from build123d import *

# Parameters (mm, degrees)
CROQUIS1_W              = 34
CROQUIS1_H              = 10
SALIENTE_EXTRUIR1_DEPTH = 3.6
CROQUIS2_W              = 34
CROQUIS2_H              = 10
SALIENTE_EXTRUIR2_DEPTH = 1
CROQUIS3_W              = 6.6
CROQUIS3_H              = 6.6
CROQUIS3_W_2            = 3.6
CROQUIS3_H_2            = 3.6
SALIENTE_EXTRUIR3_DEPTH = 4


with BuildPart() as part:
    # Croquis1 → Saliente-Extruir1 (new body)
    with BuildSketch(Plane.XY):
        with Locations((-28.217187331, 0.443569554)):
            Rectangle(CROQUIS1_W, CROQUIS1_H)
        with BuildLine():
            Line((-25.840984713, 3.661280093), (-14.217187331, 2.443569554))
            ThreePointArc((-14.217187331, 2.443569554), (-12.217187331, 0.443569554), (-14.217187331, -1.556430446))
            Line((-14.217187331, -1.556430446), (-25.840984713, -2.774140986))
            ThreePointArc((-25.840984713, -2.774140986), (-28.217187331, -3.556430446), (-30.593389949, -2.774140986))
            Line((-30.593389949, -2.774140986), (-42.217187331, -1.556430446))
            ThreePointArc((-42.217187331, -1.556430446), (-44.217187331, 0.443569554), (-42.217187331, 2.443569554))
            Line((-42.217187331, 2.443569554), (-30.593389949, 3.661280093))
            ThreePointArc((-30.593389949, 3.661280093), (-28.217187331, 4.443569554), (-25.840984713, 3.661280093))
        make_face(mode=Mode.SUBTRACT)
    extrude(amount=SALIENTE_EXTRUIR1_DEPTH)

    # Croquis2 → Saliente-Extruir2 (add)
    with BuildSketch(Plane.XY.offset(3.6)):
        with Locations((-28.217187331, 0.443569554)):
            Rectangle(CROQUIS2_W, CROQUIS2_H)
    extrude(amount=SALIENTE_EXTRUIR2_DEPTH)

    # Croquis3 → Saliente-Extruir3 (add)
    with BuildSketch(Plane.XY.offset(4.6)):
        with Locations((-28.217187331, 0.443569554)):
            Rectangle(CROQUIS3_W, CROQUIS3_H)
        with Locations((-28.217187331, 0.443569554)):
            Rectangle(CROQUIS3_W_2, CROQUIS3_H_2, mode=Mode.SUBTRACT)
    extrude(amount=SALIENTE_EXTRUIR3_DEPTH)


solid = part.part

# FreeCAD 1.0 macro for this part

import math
import FreeCAD as App
import Part
import Sketcher
from FreeCAD import Vector
Q = App.Units.Quantity

doc = App.newDocument("Part")
params = doc.addObject("Spreadsheet::Sheet", "Params")
for row, (alias, value) in enumerate([
    ("sketch1_radius", "4 mm"),
    ("sketch1_radius2", "2 mm"),
    ("sketch1_width", "34 mm"),
    ("sketch1_height", "10 mm"),
    ("pad1_length", "3.6 mm"),
    ("sketch2_width", "34 mm"),
    ("sketch2_height", "10 mm"),
    ("pad2_length", "1 mm"),
    ("sketch3_width", "6.6 mm"),
    ("sketch3_width2", "3.6 mm"),
    ("pad3_length", "4 mm"),
], start=1):
    params.set(f"A{row}", alias)
    params.set(f"B{row}", "=" + value)
    params.setAlias(f"B{row}", alias)

body = doc.addObject("PartDesign::Body", "Body")

# Sketch on XY plane
sketch1 = body.newObject("Sketcher::SketchObject", "Sketch")
sketch1.AttachmentSupport = (doc.getObject("XY_Plane"), [""])
sketch1.MapMode = "FlatFace"
sketch1.addGeometry([
    Part.LineSegment(Vector(-45.2, 5.4, 0), Vector(-45.2, -4.6, 0)),  # 0
    Part.LineSegment(Vector(-45.2, -4.6, 0), Vector(-11.2, -4.6, 0)),  # 1
    Part.LineSegment(Vector(-11.2, -4.6, 0), Vector(-11.2, 5.4, 0)),  # 2
    Part.LineSegment(Vector(-11.2, 5.4, 0), Vector(-45.2, 5.4, 0)),  # 3
    Part.ArcOfCircle(Part.Circle(Vector(-28.2, 0.4, 0), Vector(0, 0, 1), 4), math.radians(54), math.radians(126)),  # 4
    Part.LineSegment(Vector(-25.8, 3.7, 0), Vector(-14.2, 2.4, 0)),  # 5
    Part.ArcOfCircle(Part.Circle(Vector(-14.2, 0.4, 0), Vector(0, 0, 1), 2), math.radians(-90), math.radians(90)),  # 6
    Part.LineSegment(Vector(-14.2, -1.6, 0), Vector(-25.8, -2.8, 0)),  # 7
    Part.ArcOfCircle(Part.Circle(Vector(-28.2, 0.4, 0), Vector(0, 0, 1), 4), math.radians(-126), math.radians(-54)),  # 8
    Part.LineSegment(Vector(-30.6, -2.8, 0), Vector(-42.2, -1.6, 0)),  # 9
    Part.ArcOfCircle(Part.Circle(Vector(-42.2, 0.4, 0), Vector(0, 0, 1), 2), math.radians(90), math.radians(270)),  # 10
    Part.LineSegment(Vector(-42.2, 2.4, 0), Vector(-30.6, 3.7, 0)),  # 11
], False)
sketch1.addConstraint([
    Sketcher.Constraint("Coincident", 0, 2, 1, 1),
    Sketcher.Constraint("Coincident", 1, 2, 2, 1),
    Sketcher.Constraint("Coincident", 2, 2, 3, 1),
    Sketcher.Constraint("Coincident", 3, 2, 0, 1),
    Sketcher.Constraint("Coincident", 4, 1, 5, 1),
    Sketcher.Constraint("Coincident", 5, 2, 6, 2),
    Sketcher.Constraint("Coincident", 6, 1, 7, 1),
    Sketcher.Constraint("Coincident", 7, 2, 8, 2),
    Sketcher.Constraint("Coincident", 8, 1, 9, 1),
    Sketcher.Constraint("Coincident", 9, 2, 10, 2),
    Sketcher.Constraint("Coincident", 10, 1, 11, 1),
    Sketcher.Constraint("Coincident", 11, 2, 4, 2),
    Sketcher.Constraint("Vertical", 0),
    Sketcher.Constraint("Horizontal", 1),
    Sketcher.Constraint("Vertical", 2),
    Sketcher.Constraint("Horizontal", 3),
    Sketcher.Constraint("Coincident", 8, 3, 4, 3),
    Sketcher.Constraint("Equal", 4, 8),
    Sketcher.Constraint("Equal", 6, 10),
    Sketcher.Constraint("Parallel", 5, 9),
    Sketcher.Constraint("Parallel", 7, 11),
    Sketcher.Constraint("Horizontal", 4, 3, 6, 3),
    Sketcher.Constraint("Horizontal", 8, 3, 10, 3),
    Sketcher.Constraint("Horizontal", 7, 2, 8, 1),
    Sketcher.Constraint("Horizontal", 4, 1, 11, 2),
    Sketcher.Constraint("Vertical", 6, 3, 5, 2),
    Sketcher.Constraint("Vertical", 5, 2, 6, 1),
    Sketcher.Constraint("Vertical", 4, 1, 7, 2),
    Sketcher.Constraint("Vertical", 10, 3, 9, 2),
    Sketcher.Constraint("Radius", 4, Q("4 mm")),
    Sketcher.Constraint("Radius", 6, Q("2 mm")),
    Sketcher.Constraint("DistanceX", 1, 1, 1, 2, Q("34 mm")),
    Sketcher.Constraint("DistanceY", 0, 2, 0, 1, Q("10 mm")),
    Sketcher.Constraint("DistanceX", 4, 3, 6, 3, Q("14 mm")),
    Sketcher.Constraint("DistanceX", 0, 2, 10, 3, Q("3 mm")),
    Sketcher.Constraint("DistanceY", 0, 2, 10, 3, Q("5 mm")),
    Sketcher.Constraint("DistanceY", -1, 1, 4, 3, Q("0.44357 mm")),
    Sketcher.Constraint("DistanceY", -1, 1, 4, 1, Q("3.66128 mm")),
    Sketcher.Constraint("DistanceX", 8, 1, -1, 1, Q("30.59339 mm")),
])
sketch1.setExpression("Constraints[29]", "Params.sketch1_radius")
sketch1.setExpression("Constraints[30]", "Params.sketch1_radius2")
sketch1.setExpression("Constraints[31]", "Params.sketch1_width")
sketch1.setExpression("Constraints[32]", "Params.sketch1_height")
pad1 = body.newObject("PartDesign::Pad", "Pad")
pad1.Profile = sketch1
pad1.setExpression("Length", "Params.pad1_length")

# Sketch on XY plane
sketch2 = body.newObject("Sketcher::SketchObject", "Sketch001")
sketch2.AttachmentSupport = (doc.getObject("XY_Plane"), [""])
sketch2.MapMode = "FlatFace"
sketch2.AttachmentOffset = App.Placement(Vector(0, 0, 3.6), App.Rotation())
sketch2.addGeometry([
    Part.LineSegment(Vector(-45, 5, 0), Vector(-45, -5, 0)),
    Part.LineSegment(Vector(-45, -5, 0), Vector(-11, -5, 0)),
    Part.LineSegment(Vector(-11, -5, 0), Vector(-11, 5, 0)),
    Part.LineSegment(Vector(-11, 5, 0), Vector(-45, 5, 0)),
], False)
sketch2.addConstraint([
    Sketcher.Constraint("Coincident", 0, 2, 1, 1),
    Sketcher.Constraint("Coincident", 1, 2, 2, 1),
    Sketcher.Constraint("Coincident", 2, 2, 3, 1),
    Sketcher.Constraint("Coincident", 3, 2, 0, 1),
    Sketcher.Constraint("Vertical", 0),
    Sketcher.Constraint("Horizontal", 1),
    Sketcher.Constraint("Vertical", 2),
    Sketcher.Constraint("Horizontal", 3),
    Sketcher.Constraint("DistanceX", 1, 1, 1, 2, Q("34 mm")),
    Sketcher.Constraint("DistanceY", 0, 2, 0, 1, Q("10 mm")),
    Sketcher.Constraint("DistanceY", 0, 2, -1, 1, Q("4.55643 mm")),
    Sketcher.Constraint("DistanceX", 0, 2, -1, 1, Q("45.217187 mm")),
])
sketch2.setExpression("Constraints[8]", "Params.sketch2_width")
sketch2.setExpression("Constraints[9]", "Params.sketch2_height")
pad2 = body.newObject("PartDesign::Pad", "Pad001")
pad2.Profile = sketch2
pad2.setExpression("Length", "Params.pad2_length")

# Sketch on XY plane
sketch3 = body.newObject("Sketcher::SketchObject", "Sketch002")
sketch3.AttachmentSupport = (doc.getObject("XY_Plane"), [""])
sketch3.MapMode = "FlatFace"
sketch3.AttachmentOffset = App.Placement(Vector(0, 0, 4.6), App.Rotation())
sketch3.addGeometry([
    Part.LineSegment(Vector(-31.5, 3.7, 0), Vector(-31.5, -2.9, 0)),  # 0
    Part.LineSegment(Vector(-31.5, -2.9, 0), Vector(-24.9, -2.9, 0)),  # 1
    Part.LineSegment(Vector(-24.9, -2.9, 0), Vector(-24.9, 3.7, 0)),  # 2
    Part.LineSegment(Vector(-24.9, 3.7, 0), Vector(-31.5, 3.7, 0)),  # 3
    Part.LineSegment(Vector(-26.4, -1.4, 0), Vector(-30, -1.4, 0)),  # 4
    Part.LineSegment(Vector(-30, -1.4, 0), Vector(-30, 2.2, 0)),  # 5
    Part.LineSegment(Vector(-30, 2.2, 0), Vector(-26.4, 2.2, 0)),  # 6
    Part.LineSegment(Vector(-26.4, 2.2, 0), Vector(-26.4, -1.4, 0)),  # 7
], False)
sketch3.addConstraint([
    Sketcher.Constraint("Coincident", 0, 2, 1, 1),
    Sketcher.Constraint("Coincident", 1, 2, 2, 1),
    Sketcher.Constraint("Coincident", 2, 2, 3, 1),
    Sketcher.Constraint("Coincident", 3, 2, 0, 1),
    Sketcher.Constraint("Coincident", 4, 2, 5, 1),
    Sketcher.Constraint("Coincident", 5, 2, 6, 1),
    Sketcher.Constraint("Coincident", 6, 2, 7, 1),
    Sketcher.Constraint("Coincident", 7, 2, 4, 1),
    Sketcher.Constraint("Vertical", 0),
    Sketcher.Constraint("Horizontal", 1),
    Sketcher.Constraint("Vertical", 2),
    Sketcher.Constraint("Horizontal", 3),
    Sketcher.Constraint("Horizontal", 4),
    Sketcher.Constraint("Vertical", 5),
    Sketcher.Constraint("Horizontal", 6),
    Sketcher.Constraint("Vertical", 7),
    Sketcher.Constraint("Equal", 3, 0),
    Sketcher.Constraint("Equal", 6, 5),
    Sketcher.Constraint("DistanceX", 1, 1, 1, 2, Q("6.6 mm")),
    Sketcher.Constraint("DistanceX", 4, 2, 4, 1, Q("3.6 mm")),
    Sketcher.Constraint("DistanceX", 0, 2, 4, 2, Q("1.5 mm")),
    Sketcher.Constraint("DistanceY", 0, 2, 4, 2, Q("1.5 mm")),
    Sketcher.Constraint("DistanceY", 0, 2, -1, 1, Q("2.85643 mm")),
    Sketcher.Constraint("DistanceX", 0, 2, -1, 1, Q("31.517187 mm")),
])
sketch3.setExpression("Constraints[18]", "Params.sketch3_width")
sketch3.setExpression("Constraints[19]", "Params.sketch3_width2")
pad3 = body.newObject("PartDesign::Pad", "Pad002")
pad3.Profile = sketch3
pad3.setExpression("Length", "Params.pad3_length")

doc.recompute()
